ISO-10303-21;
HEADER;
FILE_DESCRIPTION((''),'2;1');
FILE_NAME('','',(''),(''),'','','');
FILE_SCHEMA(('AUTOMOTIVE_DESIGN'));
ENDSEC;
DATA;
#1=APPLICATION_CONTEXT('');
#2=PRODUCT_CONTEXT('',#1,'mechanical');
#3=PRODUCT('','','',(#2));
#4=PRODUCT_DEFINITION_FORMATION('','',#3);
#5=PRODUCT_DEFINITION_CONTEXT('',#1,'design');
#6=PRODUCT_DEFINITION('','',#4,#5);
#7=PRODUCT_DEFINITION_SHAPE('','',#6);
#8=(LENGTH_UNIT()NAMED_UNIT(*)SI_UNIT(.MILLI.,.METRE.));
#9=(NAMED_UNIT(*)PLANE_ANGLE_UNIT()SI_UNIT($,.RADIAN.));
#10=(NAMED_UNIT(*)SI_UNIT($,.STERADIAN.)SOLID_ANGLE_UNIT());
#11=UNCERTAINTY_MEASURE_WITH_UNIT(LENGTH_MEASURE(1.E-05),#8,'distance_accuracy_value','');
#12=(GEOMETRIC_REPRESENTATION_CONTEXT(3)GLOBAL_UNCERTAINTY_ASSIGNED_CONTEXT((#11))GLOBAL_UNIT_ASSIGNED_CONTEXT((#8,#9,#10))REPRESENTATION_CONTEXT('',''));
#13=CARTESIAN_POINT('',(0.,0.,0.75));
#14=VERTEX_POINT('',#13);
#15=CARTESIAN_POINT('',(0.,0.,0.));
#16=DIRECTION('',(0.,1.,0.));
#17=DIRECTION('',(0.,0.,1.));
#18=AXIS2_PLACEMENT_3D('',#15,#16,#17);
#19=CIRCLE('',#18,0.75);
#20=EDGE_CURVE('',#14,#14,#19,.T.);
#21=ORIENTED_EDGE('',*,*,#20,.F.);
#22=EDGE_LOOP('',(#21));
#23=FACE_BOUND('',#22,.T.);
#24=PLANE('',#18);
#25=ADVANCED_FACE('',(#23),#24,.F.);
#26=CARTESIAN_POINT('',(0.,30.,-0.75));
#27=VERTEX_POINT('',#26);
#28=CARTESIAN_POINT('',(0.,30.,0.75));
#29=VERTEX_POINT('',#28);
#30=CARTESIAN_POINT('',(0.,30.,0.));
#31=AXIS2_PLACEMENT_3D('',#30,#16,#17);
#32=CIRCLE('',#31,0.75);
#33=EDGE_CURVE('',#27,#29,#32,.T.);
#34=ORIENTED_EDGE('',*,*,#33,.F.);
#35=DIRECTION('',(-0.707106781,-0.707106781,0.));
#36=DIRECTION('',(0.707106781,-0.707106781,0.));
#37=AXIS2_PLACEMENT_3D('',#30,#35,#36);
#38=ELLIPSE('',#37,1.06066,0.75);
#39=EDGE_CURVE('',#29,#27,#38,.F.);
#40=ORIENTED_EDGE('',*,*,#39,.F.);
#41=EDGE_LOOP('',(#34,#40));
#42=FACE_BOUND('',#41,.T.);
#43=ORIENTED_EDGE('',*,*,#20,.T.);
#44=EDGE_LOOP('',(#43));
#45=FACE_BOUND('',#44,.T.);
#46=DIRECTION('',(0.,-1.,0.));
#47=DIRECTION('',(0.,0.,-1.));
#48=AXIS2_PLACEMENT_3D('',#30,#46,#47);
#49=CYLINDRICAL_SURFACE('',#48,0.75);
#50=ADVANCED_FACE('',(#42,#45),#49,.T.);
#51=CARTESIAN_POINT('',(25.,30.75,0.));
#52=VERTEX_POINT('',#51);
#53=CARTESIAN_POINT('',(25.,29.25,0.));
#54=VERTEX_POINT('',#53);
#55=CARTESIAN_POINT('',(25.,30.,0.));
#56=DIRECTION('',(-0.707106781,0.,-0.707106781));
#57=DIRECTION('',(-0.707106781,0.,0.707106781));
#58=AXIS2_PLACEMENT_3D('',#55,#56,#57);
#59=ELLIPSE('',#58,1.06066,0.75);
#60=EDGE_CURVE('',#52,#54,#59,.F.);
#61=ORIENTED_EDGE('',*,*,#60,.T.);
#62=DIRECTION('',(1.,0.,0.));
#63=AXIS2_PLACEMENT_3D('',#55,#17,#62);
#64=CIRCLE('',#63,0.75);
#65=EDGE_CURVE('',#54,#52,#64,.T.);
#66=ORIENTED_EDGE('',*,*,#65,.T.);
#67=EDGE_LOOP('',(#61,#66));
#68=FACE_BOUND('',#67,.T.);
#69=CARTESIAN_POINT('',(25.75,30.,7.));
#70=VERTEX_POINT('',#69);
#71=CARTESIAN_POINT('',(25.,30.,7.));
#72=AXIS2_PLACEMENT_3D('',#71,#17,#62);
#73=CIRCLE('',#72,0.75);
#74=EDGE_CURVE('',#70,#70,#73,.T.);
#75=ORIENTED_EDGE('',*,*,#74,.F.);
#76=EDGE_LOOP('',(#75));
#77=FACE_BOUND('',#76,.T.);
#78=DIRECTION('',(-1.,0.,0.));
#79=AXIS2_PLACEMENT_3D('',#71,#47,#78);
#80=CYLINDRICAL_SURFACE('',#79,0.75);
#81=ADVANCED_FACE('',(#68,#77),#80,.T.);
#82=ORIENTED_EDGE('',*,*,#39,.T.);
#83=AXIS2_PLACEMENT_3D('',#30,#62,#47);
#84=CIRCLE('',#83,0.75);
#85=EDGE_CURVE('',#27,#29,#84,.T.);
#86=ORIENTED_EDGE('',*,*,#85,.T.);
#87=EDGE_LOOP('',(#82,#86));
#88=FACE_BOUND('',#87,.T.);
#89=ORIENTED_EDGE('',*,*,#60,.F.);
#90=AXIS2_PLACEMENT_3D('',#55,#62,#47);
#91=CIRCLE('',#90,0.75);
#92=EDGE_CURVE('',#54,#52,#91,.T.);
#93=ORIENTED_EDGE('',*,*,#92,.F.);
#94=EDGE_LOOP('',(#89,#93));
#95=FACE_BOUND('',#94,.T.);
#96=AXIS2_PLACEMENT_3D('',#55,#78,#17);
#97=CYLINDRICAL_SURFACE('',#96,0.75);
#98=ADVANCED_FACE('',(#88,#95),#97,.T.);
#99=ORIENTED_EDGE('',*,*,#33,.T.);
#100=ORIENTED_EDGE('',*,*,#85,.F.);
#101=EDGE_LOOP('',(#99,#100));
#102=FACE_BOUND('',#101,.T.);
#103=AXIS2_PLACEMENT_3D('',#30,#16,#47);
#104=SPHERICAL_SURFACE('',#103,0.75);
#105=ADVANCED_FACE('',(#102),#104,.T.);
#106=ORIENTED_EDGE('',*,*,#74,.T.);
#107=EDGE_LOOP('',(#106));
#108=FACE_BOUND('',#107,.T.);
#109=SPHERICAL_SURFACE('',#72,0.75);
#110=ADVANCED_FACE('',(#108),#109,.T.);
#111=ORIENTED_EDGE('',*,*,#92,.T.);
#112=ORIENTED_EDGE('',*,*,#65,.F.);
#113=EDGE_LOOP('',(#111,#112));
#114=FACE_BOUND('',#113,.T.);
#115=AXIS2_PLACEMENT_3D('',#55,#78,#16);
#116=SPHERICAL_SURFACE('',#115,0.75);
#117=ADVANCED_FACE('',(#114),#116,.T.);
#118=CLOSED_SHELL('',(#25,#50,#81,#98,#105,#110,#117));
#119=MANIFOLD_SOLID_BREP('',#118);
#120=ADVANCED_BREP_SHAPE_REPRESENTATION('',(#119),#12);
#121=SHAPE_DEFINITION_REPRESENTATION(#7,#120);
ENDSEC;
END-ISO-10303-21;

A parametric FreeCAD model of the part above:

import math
import FreeCAD as App
import Part
import Sketcher

V = App.Vector
Q = App.Units.Quantity

doc = App.newDocument("Part")
body = doc.addObject("PartDesign::Body", "Body")

sketch1 = doc.addObject("Sketcher::SketchObject", "Sketch")
body.addObject(sketch1)
sketch1.AttachmentSupport = (doc.XZ_Plane, [""])
sketch1.MapMode = "FlatFace"
sketch1.addGeometry(Part.Circle(V(0, 0, 0), V(0, 0, 1), 0.75), False)
sketch1.addConstraint([
    Sketcher.Constraint("Coincident", 0, 3, -1, 1),
    Sketcher.Constraint("Diameter", 0, Q("1.5 mm")),
])
pad1 = doc.addObject("PartDesign::Pad", "Pad")
body.addObject(pad1)
pad1.Profile = sketch1
pad1.Length = 30
pad1.Reversed = True

sketch2 = doc.addObject("Sketcher::SketchObject", "Sketch001")
body.addObject(sketch2)
sketch2.AttachmentSupport = (doc.YZ_Plane, [""])
sketch2.MapMode = "FlatFace"
sketch2.addGeometry([
    Part.LineSegment(V(30.75, 0, 0), V(29.25, 0, 0)),
    Part.ArcOfCircle(Part.Circle(V(30, 0, 0), V(0, 0, 1), 0.75), math.radians(180), math.radians(360)),
], False)
sketch2.addConstraint([
    Sketcher.Constraint("Coincident", 0, 1, 1, 2),
    Sketcher.Constraint("Coincident", 1, 1, 0, 2),
    Sketcher.Constraint("Horizontal", 0),
    Sketcher.Constraint("PointOnObject", 1, 3, -1),
    Sketcher.Constraint("PointOnObject", 0, 1, -1),
    Sketcher.Constraint("Radius", 1, Q("0.75 mm")),
    Sketcher.Constraint("DistanceX", -1, 1, 1, 3, Q("30 mm")),
])
revolution = doc.addObject("PartDesign::Revolution", "Revolution")
body.addObject(revolution)
revolution.Profile = sketch2
revolution.ReferenceAxis = (sketch2, ["H_Axis"])
revolution.Angle = 360

sketch3 = doc.addObject("Sketcher::SketchObject", "Sketch002")
body.addObject(sketch3)
sketch3.AttachmentSupport = (doc.YZ_Plane, [""])
sketch3.MapMode = "FlatFace"
sketch3.addGeometry(Part.Circle(V(30, 0, 0), V(0, 0, 1), 0.75), False)
sketch3.addConstraint([
    Sketcher.Constraint("PointOnObject", 0, 3, -1),
    Sketcher.Constraint("Diameter", 0, Q("1.5 mm")),
    Sketcher.Constraint("DistanceX", -1, 1, 0, 3, Q("30 mm")),
])
pad2 = doc.addObject("PartDesign::Pad", "Pad001")
body.addObject(pad2)
pad2.Profile = sketch3
pad2.Length = 25

sketch4 = doc.addObject("Sketcher::SketchObject", "Sketch003")
body.addObject(sketch4)
sketch4.AttachmentSupport = (doc.XY_Plane, [""])
sketch4.MapMode = "FlatFace"
sketch4.addGeometry([
    Part.LineSegment(V(24.25, 30, 0), V(25.75, 30, 0)),
    Part.ArcOfCircle(Part.Circle(V(25, 30, 0), V(0, 0, 1), 0.75), math.radians(0), math.radians(180)),
], False)
sketch4.addGeometry(Part.LineSegment(V(24.25, 30, 0), V(25.75, 30, 0)), True)
sketch4.addConstraint([
    Sketcher.Constraint("Coincident", 0, 1, 1, 2),
    Sketcher.Constraint("Coincident", 1, 1, 0, 2),
    Sketcher.Constraint("Horizontal", 0),
    Sketcher.Constraint("Horizontal", 2),
    Sketcher.Constraint("Coincident", 2, 1, 0, 1),
    Sketcher.Constraint("Horizontal", 1, 3, 0, 1),
    Sketcher.Constraint("Equal", 0, 2),
    Sketcher.Constraint("Radius", 1, Q("0.75 mm")),
    Sketcher.Constraint("DistanceX", -1, 1, 1, 3, Q("25 mm")),
    Sketcher.Constraint("DistanceY", -1, 1, 1, 3, Q("30 mm")),
])
revolution2 = doc.addObject("PartDesign::Revolution", "Revolution001")
body.addObject(revolution2)
revolution2.Profile = sketch4
revolution2.ReferenceAxis = (sketch4, ["Axis0"])
revolution2.Angle = 360

sketch5 = doc.addObject("Sketcher::SketchObject", "Sketch004")
body.addObject(sketch5)
sketch5.AttachmentSupport = (doc.XY_Plane, [""])
sketch5.MapMode = "FlatFace"
sketch5.addGeometry(Part.Circle(V(25, 30, 0), V(0, 0, 1), 0.75), False)
sketch5.addConstraint([
    Sketcher.Constraint("Diameter", 0, Q("1.5 mm")),
    Sketcher.Constraint("DistanceX", -1, 1, 0, 3, Q("25 mm")),
    Sketcher.Constraint("DistanceY", -1, 1, 0, 3, Q("30 mm")),
])
pad3 = doc.addObject("PartDesign::Pad", "Pad002")
body.addObject(pad3)
pad3.Profile = sketch5
pad3.Length = 7

sketch6 = doc.addObject("Sketcher::SketchObject", "Sketch005")
body.addObject(sketch6)
sketch6.AttachmentSupport = (doc.XY_Plane, [""])
sketch6.MapMode = "FlatFace"
sketch6.AttachmentOffset = App.Placement(V(0, 0, 7), App.Rotation())
sketch6.addGeometry([
    Part.LineSegment(V(25, 30.75, 0), V(25, 29.25, 0)),
    Part.ArcOfCircle(Part.Circle(V(25, 30, 0), V(0, 0, 1), 0.75), math.radians(-90), math.radians(90)),
], False)
sketch6.addGeometry(Part.LineSegment(V(25, 30.75, 0), V(25, 29.25, 0)), True)
sketch6.addConstraint([
    Sketcher.Constraint("Coincident", 0, 1, 1, 2),
    Sketcher.Constraint("Coincident", 1, 1, 0, 2),
    Sketcher.Constraint("Vertical", 0),
    Sketcher.Constraint("Vertical", 2),
    Sketcher.Constraint("Coincident", 2, 1, 0, 1),
    Sketcher.Constraint("Vertical", 1, 3, 0, 1),
    Sketcher.Constraint("Equal", 0, 2),
    Sketcher.Constraint("Radius", 1, Q("0.75 mm")),
    Sketcher.Constraint("DistanceX", -1, 1, 1, 3, Q("25 mm")),
    Sketcher.Constraint("DistanceY", -1, 1, 1, 3, Q("30 mm")),
])
revolution3 = doc.addObject("PartDesign::Revolution", "Revolution002")
body.addObject(revolution3)
revolution3.Profile = sketch6
revolution3.ReferenceAxis = (sketch6, ["Axis0"])
revolution3.Angle = 360

doc.recompute()
